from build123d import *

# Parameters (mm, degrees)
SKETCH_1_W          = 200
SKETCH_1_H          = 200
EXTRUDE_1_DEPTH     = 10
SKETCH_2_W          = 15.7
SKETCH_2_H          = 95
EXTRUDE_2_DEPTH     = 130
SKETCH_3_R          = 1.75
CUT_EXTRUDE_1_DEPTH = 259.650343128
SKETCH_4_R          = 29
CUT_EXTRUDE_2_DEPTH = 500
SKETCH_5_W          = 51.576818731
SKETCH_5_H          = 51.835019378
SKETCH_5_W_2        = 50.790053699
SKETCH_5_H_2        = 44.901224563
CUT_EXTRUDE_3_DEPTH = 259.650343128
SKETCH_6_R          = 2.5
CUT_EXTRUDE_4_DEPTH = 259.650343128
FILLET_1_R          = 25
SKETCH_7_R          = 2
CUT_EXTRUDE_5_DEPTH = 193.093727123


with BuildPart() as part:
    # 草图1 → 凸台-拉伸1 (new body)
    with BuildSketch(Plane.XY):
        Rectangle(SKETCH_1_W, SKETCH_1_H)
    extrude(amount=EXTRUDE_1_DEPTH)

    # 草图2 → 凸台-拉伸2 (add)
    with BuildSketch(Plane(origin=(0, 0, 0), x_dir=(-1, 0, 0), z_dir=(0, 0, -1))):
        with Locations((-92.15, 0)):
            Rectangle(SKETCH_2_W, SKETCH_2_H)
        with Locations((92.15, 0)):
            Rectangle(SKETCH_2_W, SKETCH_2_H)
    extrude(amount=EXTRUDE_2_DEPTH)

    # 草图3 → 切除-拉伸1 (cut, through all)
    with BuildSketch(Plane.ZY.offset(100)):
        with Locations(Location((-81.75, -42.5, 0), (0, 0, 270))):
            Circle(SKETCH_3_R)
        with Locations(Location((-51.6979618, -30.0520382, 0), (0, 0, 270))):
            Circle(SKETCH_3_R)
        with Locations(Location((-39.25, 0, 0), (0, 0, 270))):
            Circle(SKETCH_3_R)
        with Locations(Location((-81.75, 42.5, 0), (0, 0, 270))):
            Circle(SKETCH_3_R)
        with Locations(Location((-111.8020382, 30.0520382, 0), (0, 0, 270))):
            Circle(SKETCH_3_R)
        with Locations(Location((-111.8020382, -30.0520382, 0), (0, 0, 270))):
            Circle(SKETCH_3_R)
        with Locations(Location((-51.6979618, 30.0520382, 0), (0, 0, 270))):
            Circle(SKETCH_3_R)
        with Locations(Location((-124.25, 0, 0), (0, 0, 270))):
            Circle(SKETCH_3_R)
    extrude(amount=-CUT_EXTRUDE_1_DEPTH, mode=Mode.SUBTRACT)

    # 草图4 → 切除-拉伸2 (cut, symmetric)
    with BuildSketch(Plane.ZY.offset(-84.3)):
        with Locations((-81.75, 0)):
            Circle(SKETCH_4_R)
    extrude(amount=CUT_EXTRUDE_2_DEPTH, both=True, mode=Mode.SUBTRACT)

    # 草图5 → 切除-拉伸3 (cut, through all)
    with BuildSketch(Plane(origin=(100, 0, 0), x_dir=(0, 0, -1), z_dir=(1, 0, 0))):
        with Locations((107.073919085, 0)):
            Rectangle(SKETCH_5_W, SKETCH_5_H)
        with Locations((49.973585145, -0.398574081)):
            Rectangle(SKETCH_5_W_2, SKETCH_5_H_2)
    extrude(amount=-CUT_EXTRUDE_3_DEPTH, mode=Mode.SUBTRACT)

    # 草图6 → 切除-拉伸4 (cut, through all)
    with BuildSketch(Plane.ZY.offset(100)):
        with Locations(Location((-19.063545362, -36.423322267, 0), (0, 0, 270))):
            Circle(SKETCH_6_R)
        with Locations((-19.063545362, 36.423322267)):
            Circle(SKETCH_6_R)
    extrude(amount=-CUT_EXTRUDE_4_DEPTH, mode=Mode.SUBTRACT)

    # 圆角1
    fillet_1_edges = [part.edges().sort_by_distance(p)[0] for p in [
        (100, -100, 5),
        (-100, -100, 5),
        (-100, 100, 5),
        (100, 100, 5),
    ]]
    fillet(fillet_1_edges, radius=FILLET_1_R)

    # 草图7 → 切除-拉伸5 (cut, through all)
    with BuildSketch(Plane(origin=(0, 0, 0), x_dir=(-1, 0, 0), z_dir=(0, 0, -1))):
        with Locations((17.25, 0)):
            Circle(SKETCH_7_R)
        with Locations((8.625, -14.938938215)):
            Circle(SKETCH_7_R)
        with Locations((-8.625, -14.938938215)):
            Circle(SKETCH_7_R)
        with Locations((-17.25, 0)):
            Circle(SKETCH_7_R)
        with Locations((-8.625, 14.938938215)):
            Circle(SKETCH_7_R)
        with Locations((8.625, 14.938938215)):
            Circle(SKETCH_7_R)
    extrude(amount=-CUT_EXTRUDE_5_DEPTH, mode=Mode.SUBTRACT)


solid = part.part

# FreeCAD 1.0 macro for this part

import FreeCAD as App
import Part
import Sketcher


def edges_at(feature, points):
    """Names of the edges that pass closest to the given points."""
    edges = feature.Shape.Edges
    near = lambda p: min(range(len(edges)), key=lambda i: edges[i].distToShape(Part.Vertex(*p))[0])
    return sorted({f"Edge{near(p) + 1}" for p in points})

doc = App.newDocument("Part")
body = doc.addObject("PartDesign::Body", "Body")

sketch1 = body.newObject("Sketcher::SketchObject", "Sketch")
sketch1.AttachmentSupport = (doc.getObject("XY_Plane"), [""])
sketch1.MapMode = "FlatFace"
sketch1.addGeometry(Part.LineSegment(App.Vector(-100, 100, 0), App.Vector(-100, -100, 0)), False)
sketch1.addGeometry(Part.LineSegment(App.Vector(-100, -100, 0), App.Vector(100, -100, 0)), False)
sketch1.addGeometry(Part.LineSegment(App.Vector(100, -100, 0), App.Vector(100, 100, 0)), False)
sketch1.addGeometry(Part.LineSegment(App.Vector(100, 100, 0), App.Vector(-100, 100, 0)), False)
sketch1.addConstraint(Sketcher.Constraint("Coincident", 0, 2, 1, 1))
sketch1.addConstraint(Sketcher.Constraint("Coincident", 1, 2, 2, 1))
sketch1.addConstraint(Sketcher.Constraint("Coincident", 2, 2, 3, 1))
sketch1.addConstraint(Sketcher.Constraint("Coincident", 3, 2, 0, 1))
sketch1.addConstraint(Sketcher.Constraint("Vertical", 0))
sketch1.addConstraint(Sketcher.Constraint("Horizontal", 1))
sketch1.addConstraint(Sketcher.Constraint("Vertical", 2))
sketch1.addConstraint(Sketcher.Constraint("Horizontal", 3))
sketch1.addConstraint(Sketcher.Constraint("Symmetric", 0, 2, 2, 2, -1, 1))
sketch1.addConstraint(Sketcher.Constraint("Equal", 3, 0))
sketch1.addConstraint(Sketcher.Constraint("DistanceX", 1, 1, 1, 2, 200.0))
pad1 = body.newObject("PartDesign::Pad", "Pad")
pad1.Profile = sketch1
pad1.Length = 10

sketch2 = body.newObject("Sketcher::SketchObject", "Sketch001")
sketch2.AttachmentSupport = (doc.getObject("XY_Plane"), [""])
sketch2.MapMode = "FlatFace"
sketch2.addGeometry(Part.LineSegment(App.Vector(100, 47.5, 0), App.Vector(100, -47.5, 0)), False)
sketch2.addGeometry(Part.LineSegment(App.Vector(100, -47.5, 0), App.Vector(84.3, -47.5, 0)), False)
sketch2.addGeometry(Part.LineSegment(App.Vector(84.3, -47.5, 0), App.Vector(84.3, 47.5, 0)), False)
sketch2.addGeometry(Part.LineSegment(App.Vector(84.3, 47.5, 0), App.Vector(100, 47.5, 0)), False)
sketch2.addGeometry(Part.LineSegment(App.Vector(-84.3, 47.5, 0), App.Vector(-84.3, -47.5, 0)), False)
sketch2.addGeometry(Part.LineSegment(App.Vector(-84.3, -47.5, 0), App.Vector(-100, -47.5, 0)), False)
sketch2.addGeometry(Part.LineSegment(App.Vector(-100, -47.5, 0), App.Vector(-100, 47.5, 0)), False)
sketch2.addGeometry(Part.LineSegment(App.Vector(-100, 47.5, 0), App.Vector(-84.3, 47.5, 0)), False)
sketch2.addConstraint(Sketcher.Constraint("Coincident", 0, 2, 1, 1))
sketch2.addConstraint(Sketcher.Constraint("Coincident", 1, 2, 2, 1))
sketch2.addConstraint(Sketcher.Constraint("Coincident", 2, 2, 3, 1))
sketch2.addConstraint(Sketcher.Constraint("Coincident", 3, 2, 0, 1))
sketch2.addConstraint(Sketcher.Constraint("Coincident", 4, 2, 5, 1))
sketch2.addConstraint(Sketcher.Constraint("Coincident", 5, 2, 6, 1))
sketch2.addConstraint(Sketcher.Constraint("Coincident", 6, 2, 7, 1))
sketch2.addConstraint(Sketcher.Constraint("Coincident", 7, 2, 4, 1))
sketch2.addConstraint(Sketcher.Constraint("Vertical", 0))
sketch2.addConstraint(Sketcher.Constraint("Horizontal", 1))
sketch2.addConstraint(Sketcher.Constraint("Vertical", 2))
sketch2.addConstraint(Sketcher.Constraint("Horizontal", 3))
sketch2.addConstraint(Sketcher.Constraint("Vertical", 4))
sketch2.addConstraint(Sketcher.Constraint("Horizontal", 5))
sketch2.addConstraint(Sketcher.Constraint("Vertical", 6))
sketch2.addConstraint(Sketcher.Constraint("Horizontal", 7))
sketch2.addConstraint(Sketcher.Constraint("Symmetric", 2, 2, 4, 2, -1, 1))
sketch2.addConstraint(Sketcher.Constraint("Symmetric", 0, 2, 6, 2, -1, 1))
sketch2.addConstraint(Sketcher.Constraint("Horizontal", 1, 2, 4, 2))
sketch2.addConstraint(Sketcher.Constraint("DistanceY", 0, 2, 0, 1, 95.0))
sketch2.addConstraint(Sketcher.Constraint("DistanceX", 1, 2, 1, 1, 15.7))
sketch2.addConstraint(Sketcher.Constraint("DistanceX", -1, 1, 0, 2, 100.0))
pad2 = body.newObject("PartDesign::Pad", "Pad001")
pad2.Profile = sketch2
pad2.Length = 130
pad2.Reversed = True

sketch3 = body.newObject("Sketcher::SketchObject", "Sketch002")
sketch3.AttachmentSupport = (doc.getObject("YZ_Plane"), [""])
sketch3.MapMode = "FlatFace"
sketch3.AttachmentOffset = App.Placement(App.Vector(0, 0, -100), App.Rotation())
sketch3.addGeometry(Part.Circle(App.Vector(-42.5, -81.75, 0), App.Vector(0, 0, 1), 1.75), False)
sketch3.addGeometry(Part.Circle(App.Vector(-30.052038, -51.697962, 0), App.Vector(0, 0, 1), 1.75), False)
sketch3.addGeometry(Part.Circle(App.Vector(0, -39.25, 0), App.Vector(0, 0, 1), 1.75), False)
sketch3.addGeometry(Part.Circle(App.Vector(42.5, -81.75, 0), App.Vector(0, 0, 1), 1.75), False)
sketch3.addGeometry(Part.Circle(App.Vector(30.052038, -111.802038, 0), App.Vector(0, 0, 1), 1.75), False)
sketch3.addGeometry(Part.Circle(App.Vector(-30.052038, -111.802038, 0), App.Vector(0, 0, 1), 1.75), False)
sketch3.addGeometry(Part.Circle(App.Vector(30.052038, -51.697962, 0), App.Vector(0, 0, 1), 1.75), False)
sketch3.addGeometry(Part.Circle(App.Vector(0, -124.25, 0), App.Vector(0, 0, 1), 1.75), False)
sketch3.addConstraint(Sketcher.Constraint("Equal", 0, 1))
sketch3.addConstraint(Sketcher.Constraint("Equal", 1, 2))
sketch3.addConstraint(Sketcher.Constraint("Equal", 2, 3))
sketch3.addConstraint(Sketcher.Constraint("Equal", 3, 4))
sketch3.addConstraint(Sketcher.Constraint("Equal", 4, 5))
sketch3.addConstraint(Sketcher.Constraint("Equal", 5, 6))
sketch3.addConstraint(Sketcher.Constraint("Equal", 6, 7))
sketch3.addConstraint(Sketcher.Constraint("Symmetric", 0, 3, 3, 3, -2))
sketch3.addConstraint(Sketcher.Constraint("Symmetric", 4, 3, 5, 3, -2))
sketch3.addConstraint(Sketcher.Constraint("Symmetric", 1, 3, 6, 3, -2))
sketch3.addConstraint(Sketcher.Constraint("PointOnObject", 2, 3, -2))
sketch3.addConstraint(Sketcher.Constraint("PointOnObject", 7, 3, -2))
sketch3.addConstraint(Sketcher.Constraint("Vertical", 1, 3, 5, 3))
sketch3.addConstraint(Sketcher.Constraint("Diameter", 0, 3.5))
sketch3.addConstraint(Sketcher.Constraint("DistanceX", 0, 3, 3, 3, 85.0))
sketch3.addConstraint(Sketcher.Constraint("DistanceY", 0, 3, 2, 3, 42.5))
sketch3.addConstraint(Sketcher.Constraint("DistanceY", 7, 3, 0, 3, 42.5))
sketch3.addConstraint(Sketcher.Constraint("DistanceY", 0, 3, -1, 1, 81.75))
sketch3.addConstraint(Sketcher.Constraint("DistanceX", 1, 3, -1, 1, 30.052038))
sketch3.addConstraint(Sketcher.Constraint("DistanceY", 1, 3, -1, 1, 51.697962))
sketch3.addConstraint(Sketcher.Constraint("DistanceY", 4, 3, -1, 1, 111.802038))
pocket1 = body.newObject("PartDesign::Pocket", "Pocket")
pocket1.Profile = sketch3
pocket1.Type = "ThroughAll"
pocket1.Reversed = True

sketch4 = body.newObject("Sketcher::SketchObject", "Sketch003")
sketch4.AttachmentSupport = (doc.getObject("YZ_Plane"), [""])
sketch4.MapMode = "FlatFace"
sketch4.AttachmentOffset = App.Placement(App.Vector(0, 0, 84.3), App.Rotation())
sketch4.addGeometry(Part.Circle(App.Vector(0, -81.75, 0), App.Vector(0, 0, 1), 29), False)
sketch4.addConstraint(Sketcher.Constraint("PointOnObject", 0, 3, -2))
sketch4.addConstraint(Sketcher.Constraint("Diameter", 0, 58.0))
sketch4.addConstraint(Sketcher.Constraint("DistanceY", 0, 3, -1, 1, 81.75))
pocket2 = body.newObject("PartDesign::Pocket", "Pocket001")
pocket2.Profile = sketch4
pocket2.Length = 1000
pocket2.Midplane = True

sketch5 = body.newObject("Sketcher::SketchObject", "Sketch004")
sketch5.AttachmentSupport = (doc.getObject("YZ_Plane"), [""])
sketch5.MapMode = "FlatFace"
sketch5.AttachmentOffset = App.Placement(App.Vector(0, 0, 100), App.Rotation())
sketch5.addGeometry(Part.LineSegment(App.Vector(25.91751, -81.28551, 0), App.Vector(-25.91751, -81.28551, 0)), False)
sketch5.addGeometry(Part.LineSegment(App.Vector(-25.91751, -81.28551, 0), App.Vector(-25.91751, -132.862328, 0)), False)
sketch5.addGeometry(Part.LineSegment(App.Vector(-25.91751, -132.862328, 0), App.Vector(25.91751, -132.862328, 0)), False)
sketch5.addGeometry(Part.LineSegment(App.Vector(25.91751, -132.862328, 0), App.Vector(25.91751, -81.28551, 0)), False)
sketch5.addGeometry(Part.LineSegment(App.Vector(22.052038, -24.578558, 0), App.Vector(-22.849186, -24.578558, 0)), False)
sketch5.addGeometry(Part.LineSegment(App.Vector(-22.849186, -24.578558, 0), App.Vector(-22.849186, -75.368612, 0)), False)
sketch5.addGeometry(Part.LineSegment(App.Vector(-22.849186, -75.368612, 0), App.Vector(22.052038, -75.368612, 0)), False)
sketch5.addGeometry(Part.LineSegment(App.Vector(22.052038, -75.368612, 0), App.Vector(22.052038, -24.578558, 0)), False)
sketch5.addConstraint(Sketcher.Constraint("Coincident", 0, 2, 1, 1))
sketch5.addConstraint(Sketcher.Constraint("Coincident", 1, 2, 2, 1))
sketch5.addConstraint(Sketcher.Constraint("Coincident", 2, 2, 3, 1))
sketch5.addConstraint(Sketcher.Constraint("Coincident", 3, 2, 0, 1))
sketch5.addConstraint(Sketcher.Constraint("Coincident", 4, 2, 5, 1))
sketch5.addConstraint(Sketcher.Constraint("Coincident", 5, 2, 6, 1))
sketch5.addConstraint(Sketcher.Constraint("Coincident", 6, 2, 7, 1))
sketch5.addConstraint(Sketcher.Constraint("Coincident", 7, 2, 4, 1))
sketch5.addConstraint(Sketcher.Constraint("Horizontal", 0))
sketch5.addConstraint(Sketcher.Constraint("Vertical", 1))
sketch5.addConstraint(Sketcher.Constraint("Horizontal", 2))
sketch5.addConstraint(Sketcher.Constraint("Vertical", 3))
sketch5.addConstraint(Sketcher.Constraint("Horizontal", 4))
sketch5.addConstraint(Sketcher.Constraint("Vertical", 5))
sketch5.addConstraint(Sketcher.Constraint("Horizontal", 6))
sketch5.addConstraint(Sketcher.Constraint("Vertical", 7))
sketch5.addConstraint(Sketcher.Constraint("DistanceX", 0, 2, 0, 1, 51.835019))
sketch5.addConstraint(Sketcher.Constraint("DistanceY", 1, 2, 1, 1, 51.576819))
sketch5.addConstraint(Sketcher.Constraint("DistanceX", 4, 2, 4, 1, 44.901225))
sketch5.addConstraint(Sketcher.Constraint("DistanceY", 5, 2, 5, 1, 50.790054))
sketch5.addConstraint(Sketcher.Constraint("DistanceX", 0, 2, -1, 1, 25.91751))
sketch5.addConstraint(Sketcher.Constraint("DistanceY", 0, 2, -1, 1, 81.28551))
sketch5.addConstraint(Sketcher.Constraint("DistanceY", 4, 2, -1, 1, 24.578558))
sketch5.addConstraint(Sketcher.Constraint("DistanceX", -1, 1, 6, 2, 22.052038))
pocket3 = body.newObject("PartDesign::Pocket", "Pocket002")
pocket3.Profile = sketch5
pocket3.Type = "ThroughAll"

sketch6 = body.newObject("Sketcher::SketchObject", "Sketch005")
sketch6.AttachmentSupport = (doc.getObject("YZ_Plane"), [""])
sketch6.MapMode = "FlatFace"
sketch6.AttachmentOffset = App.Placement(App.Vector(0, 0, -100), App.Rotation())
sketch6.addGeometry(Part.Circle(App.Vector(-36.423322, -19.063545, 0), App.Vector(0, 0, 1), 2.5), False)
sketch6.addGeometry(Part.Circle(App.Vector(36.423322, -19.063545, 0), App.Vector(0, 0, 1), 2.5), False)
sketch6.addConstraint(Sketcher.Constraint("Equal", 0, 1))
sketch6.addConstraint(Sketcher.Constraint("Symmetric", 0, 3, 1, 3, -2))
sketch6.addConstraint(Sketcher.Constraint("Diameter", 0, 5.0))
sketch6.addConstraint(Sketcher.Constraint("DistanceX", 0, 3, -1, 1, 36.423322))
sketch6.addConstraint(Sketcher.Constraint("DistanceY", 0, 3, -1, 1, 19.063545))
pocket4 = body.newObject("PartDesign::Pocket", "Pocket003")
pocket4.Profile = sketch6
pocket4.Type = "ThroughAll"
pocket4.Reversed = True
doc.recompute()

fillet = body.newObject("PartDesign::Fillet", "Fillet")
fillet.Base = (pocket4, edges_at(pocket4, [
    (100, -100, 5),
    (-100, -100, 5),
    (-100, 100, 5),
    (100, 100, 5),
]))
fillet.Radius = 25

sketch7 = body.newObject("Sketcher::SketchObject", "Sketch006")
sketch7.AttachmentSupport = (doc.getObject("XY_Plane"), [""])
sketch7.MapMode = "FlatFace"
sketch7.addGeometry(Part.Circle(App.Vector(-17.25, 0, 0), App.Vector(0, 0, 1), 2), False)
sketch7.addGeometry(Part.Circle(App.Vector(-8.625, -14.938938, 0), App.Vector(0, 0, 1), 2), False)
sketch7.addGeometry(Part.Circle(App.Vector(8.625, -14.938938, 0), App.Vector(0, 0, 1), 2), False)
sketch7.addGeometry(Part.Circle(App.Vector(17.25, 0, 0), App.Vector(0, 0, 1), 2), False)
sketch7.addGeometry(Part.Circle(App.Vector(8.625, 14.938938, 0), App.Vector(0, 0, 1), 2), False)
sketch7.addGeometry(Part.Circle(App.Vector(-8.625, 14.938938, 0), App.Vector(0, 0, 1), 2), False)
sketch7.addConstraint(Sketcher.Constraint("Equal", 0, 1))
sketch7.addConstraint(Sketcher.Constraint("Equal", 1, 2))
sketch7.addConstraint(Sketcher.Constraint("Equal", 2, 3))
sketch7.addConstraint(Sketcher.Constraint("Equal", 3, 4))
sketch7.addConstraint(Sketcher.Constraint("Equal", 4, 5))
sketch7.addConstraint(Sketcher.Constraint("Symmetric", 0, 3, 3, 3, -1, 1))
sketch7.addConstraint(Sketcher.Constraint("Symmetric", 1, 3, 4, 3, -1, 1))
sketch7.addConstraint(Sketcher.Constraint("Symmetric", 2, 3, 5, 3, -1, 1))
sketch7.addConstraint(Sketcher.Constraint("Symmetric", 1, 3, 2, 3, -2))
sketch7.addConstraint(Sketcher.Constraint("PointOnObject", 0, 3, -1))
sketch7.addConstraint(Sketcher.Constraint("Diameter", 0, 4.0))
sketch7.addConstraint(Sketcher.Constraint("DistanceX", 0, 3, 3, 3, 34.5))
sketch7.addConstraint(Sketcher.Constraint("DistanceX", 1, 3, 2, 3, 17.25))
sketch7.addConstraint(Sketcher.Constraint("DistanceY", 1, 3, -1, 1, 14.938938))
pocket5 = body.newObject("PartDesign::Pocket", "Pocket004")
pocket5.Profile = sketch7
pocket5.Type = "ThroughAll"
pocket5.Reversed = True

doc.recompute()
